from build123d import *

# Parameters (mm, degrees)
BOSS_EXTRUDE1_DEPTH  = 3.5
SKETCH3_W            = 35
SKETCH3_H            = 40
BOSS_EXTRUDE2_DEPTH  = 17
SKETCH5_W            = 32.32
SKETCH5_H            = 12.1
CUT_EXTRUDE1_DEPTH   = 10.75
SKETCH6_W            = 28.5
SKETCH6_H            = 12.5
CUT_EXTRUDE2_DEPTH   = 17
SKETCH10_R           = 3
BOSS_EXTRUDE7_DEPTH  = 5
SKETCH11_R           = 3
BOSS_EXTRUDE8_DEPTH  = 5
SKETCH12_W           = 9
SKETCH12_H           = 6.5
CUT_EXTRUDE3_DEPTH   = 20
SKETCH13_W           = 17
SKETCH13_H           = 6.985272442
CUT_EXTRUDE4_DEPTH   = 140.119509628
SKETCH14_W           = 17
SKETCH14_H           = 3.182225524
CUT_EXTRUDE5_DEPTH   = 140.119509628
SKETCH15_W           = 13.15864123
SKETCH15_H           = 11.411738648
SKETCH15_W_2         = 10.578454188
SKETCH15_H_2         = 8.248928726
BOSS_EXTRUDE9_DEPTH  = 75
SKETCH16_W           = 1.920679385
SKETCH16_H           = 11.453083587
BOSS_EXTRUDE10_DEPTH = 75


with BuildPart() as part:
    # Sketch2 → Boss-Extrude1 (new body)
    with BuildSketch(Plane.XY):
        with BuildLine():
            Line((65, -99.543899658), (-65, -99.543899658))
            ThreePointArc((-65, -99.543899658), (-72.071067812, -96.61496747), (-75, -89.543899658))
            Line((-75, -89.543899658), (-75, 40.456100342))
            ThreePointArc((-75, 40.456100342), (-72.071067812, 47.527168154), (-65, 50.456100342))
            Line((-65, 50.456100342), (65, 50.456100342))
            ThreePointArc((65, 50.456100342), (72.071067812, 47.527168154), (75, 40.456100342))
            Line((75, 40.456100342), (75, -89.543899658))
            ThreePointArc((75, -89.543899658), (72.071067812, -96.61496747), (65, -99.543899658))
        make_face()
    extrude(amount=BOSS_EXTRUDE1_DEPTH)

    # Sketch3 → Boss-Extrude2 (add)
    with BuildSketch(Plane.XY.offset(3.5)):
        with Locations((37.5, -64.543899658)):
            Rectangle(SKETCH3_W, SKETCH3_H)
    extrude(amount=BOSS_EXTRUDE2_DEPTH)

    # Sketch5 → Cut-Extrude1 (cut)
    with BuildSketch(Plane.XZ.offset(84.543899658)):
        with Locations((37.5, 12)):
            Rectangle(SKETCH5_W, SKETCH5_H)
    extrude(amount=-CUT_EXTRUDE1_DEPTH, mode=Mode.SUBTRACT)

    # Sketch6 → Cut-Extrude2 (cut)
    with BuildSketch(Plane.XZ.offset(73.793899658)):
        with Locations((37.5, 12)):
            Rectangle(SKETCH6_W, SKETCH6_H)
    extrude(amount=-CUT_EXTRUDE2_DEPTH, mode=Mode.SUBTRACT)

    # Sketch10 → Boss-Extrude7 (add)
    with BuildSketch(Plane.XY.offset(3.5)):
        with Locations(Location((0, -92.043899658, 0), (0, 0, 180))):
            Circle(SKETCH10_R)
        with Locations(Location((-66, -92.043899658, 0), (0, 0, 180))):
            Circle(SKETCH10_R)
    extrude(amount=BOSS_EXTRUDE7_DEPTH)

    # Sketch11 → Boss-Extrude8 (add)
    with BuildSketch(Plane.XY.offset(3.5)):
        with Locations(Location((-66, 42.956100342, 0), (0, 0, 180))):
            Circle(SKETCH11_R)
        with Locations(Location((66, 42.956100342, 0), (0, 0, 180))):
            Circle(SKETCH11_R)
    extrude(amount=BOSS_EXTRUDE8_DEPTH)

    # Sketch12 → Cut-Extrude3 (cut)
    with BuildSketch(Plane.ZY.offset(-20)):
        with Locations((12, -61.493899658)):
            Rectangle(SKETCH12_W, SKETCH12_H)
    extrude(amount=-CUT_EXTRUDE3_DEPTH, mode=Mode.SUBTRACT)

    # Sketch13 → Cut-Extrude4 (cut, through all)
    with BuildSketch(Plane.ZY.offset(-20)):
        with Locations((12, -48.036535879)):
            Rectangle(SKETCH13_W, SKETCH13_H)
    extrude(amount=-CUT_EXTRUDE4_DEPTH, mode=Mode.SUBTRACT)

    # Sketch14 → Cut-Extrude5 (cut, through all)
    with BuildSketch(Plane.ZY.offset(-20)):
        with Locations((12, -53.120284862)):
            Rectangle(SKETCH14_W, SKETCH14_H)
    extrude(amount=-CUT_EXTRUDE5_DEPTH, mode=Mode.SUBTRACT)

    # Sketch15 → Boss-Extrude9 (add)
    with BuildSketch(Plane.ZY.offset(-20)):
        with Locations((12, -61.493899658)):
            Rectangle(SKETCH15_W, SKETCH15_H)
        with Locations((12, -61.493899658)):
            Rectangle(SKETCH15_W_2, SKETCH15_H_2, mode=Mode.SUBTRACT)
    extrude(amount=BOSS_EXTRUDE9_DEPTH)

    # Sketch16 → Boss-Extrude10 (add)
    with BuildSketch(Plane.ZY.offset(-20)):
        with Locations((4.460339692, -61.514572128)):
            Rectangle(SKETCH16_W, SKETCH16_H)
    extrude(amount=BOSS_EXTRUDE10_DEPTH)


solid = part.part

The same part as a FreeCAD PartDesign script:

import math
import FreeCAD as App
import Part
import Sketcher

doc = App.newDocument("Part")
body = doc.addObject("PartDesign::Body", "Body")

# Sketch on XY plane
sketch1 = body.newObject("Sketcher::SketchObject", "Sketch")
sketch1.AttachmentSupport = (doc.getObject("XY_Plane"), [""])
sketch1.MapMode = "FlatFace"
sketch1.addGeometry([
    Part.LineSegment(App.Vector(-65, -100, 0), App.Vector(65, -100, 0)),  # 0
    Part.ArcOfCircle(Part.Circle(App.Vector(65, -90, 0), App.Vector(0, 0, 1), 10), math.radians(-90), math.radians(0)),  # 1
    Part.LineSegment(App.Vector(75, -90, 0), App.Vector(75, 40, 0)),  # 2
    Part.ArcOfCircle(Part.Circle(App.Vector(65, 40, 0), App.Vector(0, 0, 1), 10), math.radians(0), math.radians(90)),  # 3
    Part.LineSegment(App.Vector(65, 50, 0), App.Vector(-65, 50, 0)),  # 4
    Part.ArcOfCircle(Part.Circle(App.Vector(-65, 40, 0), App.Vector(0, 0, 1), 10), math.radians(90), math.radians(180)),  # 5
    Part.LineSegment(App.Vector(-75, 40, 0), App.Vector(-75, -90, 0)),  # 6
    Part.ArcOfCircle(Part.Circle(App.Vector(-65, -90, 0), App.Vector(0, 0, 1), 10), math.radians(180), math.radians(270)),  # 7
], False)
sketch1.addConstraint([
    Sketcher.Constraint("Tangent", 0, 2, 1, 1),
    Sketcher.Constraint("Tangent", 1, 2, 2, 1),
    Sketcher.Constraint("Tangent", 2, 2, 3, 1),
    Sketcher.Constraint("Tangent", 3, 2, 4, 1),
    Sketcher.Constraint("Tangent", 4, 2, 5, 1),
    Sketcher.Constraint("Tangent", 5, 2, 6, 1),
    Sketcher.Constraint("Tangent", 6, 2, 7, 1),
    Sketcher.Constraint("Tangent", 7, 2, 0, 1),
    Sketcher.Constraint("Horizontal", 0),
    Sketcher.Constraint("Vertical", 2),
    Sketcher.Constraint("Horizontal", 4),
    Sketcher.Constraint("Vertical", 6),
    Sketcher.Constraint("Equal", 1, 3),
    Sketcher.Constraint("Equal", 3, 5),
    Sketcher.Constraint("Equal", 5, 7),
    Sketcher.Constraint("Equal", 4, 2),
    Sketcher.Constraint("Radius", 1, 10.0),
    Sketcher.Constraint("DistanceX", 0, 1, 0, 2, 130.0),
    Sketcher.Constraint("DistanceX", -1, 1, 1, 3, 65.0),
    Sketcher.Constraint("DistanceY", 1, 3, -1, 1, 89.5439),
])
pad1 = body.newObject("PartDesign::Pad", "Pad")
pad1.Profile = sketch1
pad1.Length = 3.5

# Sketch on XY plane
sketch2 = body.newObject("Sketcher::SketchObject", "Sketch001")
sketch2.AttachmentSupport = (doc.getObject("XY_Plane"), [""])
sketch2.MapMode = "FlatFace"
sketch2.AttachmentOffset = App.Placement(App.Vector(0, 0, 3.5), App.Rotation())
sketch2.addGeometry([
    Part.LineSegment(App.Vector(20, -45, 0), App.Vector(20, -85, 0)),
    Part.LineSegment(App.Vector(20, -85, 0), App.Vector(55, -85, 0)),
    Part.LineSegment(App.Vector(55, -85, 0), App.Vector(55, -45, 0)),
    Part.LineSegment(App.Vector(55, -45, 0), App.Vector(20, -45, 0)),
], False)
sketch2.addConstraint([
    Sketcher.Constraint("Coincident", 0, 2, 1, 1),
    Sketcher.Constraint("Coincident", 1, 2, 2, 1),
    Sketcher.Constraint("Coincident", 2, 2, 3, 1),
    Sketcher.Constraint("Coincident", 3, 2, 0, 1),
    Sketcher.Constraint("Vertical", 0),
    Sketcher.Constraint("Horizontal", 1),
    Sketcher.Constraint("Vertical", 2),
    Sketcher.Constraint("Horizontal", 3),
    Sketcher.Constraint("DistanceX", 1, 1, 1, 2, 35.0),
    Sketcher.Constraint("DistanceY", 0, 2, 0, 1, 40.0),
    Sketcher.Constraint("DistanceX", -1, 1, 0, 2, 20.0),
    Sketcher.Constraint("DistanceY", 0, 2, -1, 1, 84.5439),
])
pad2 = body.newObject("PartDesign::Pad", "Pad001")
pad2.Profile = sketch2
pad2.Length = 17

# Sketch on XZ plane
sketch3 = body.newObject("Sketcher::SketchObject", "Sketch002")
sketch3.AttachmentSupport = (doc.getObject("XZ_Plane"), [""])
sketch3.MapMode = "FlatFace"
sketch3.AttachmentOffset = App.Placement(App.Vector(0, 0, 84.5439), App.Rotation())
sketch3.addGeometry([
    Part.LineSegment(App.Vector(21, 18, 0), App.Vector(21, 6, 0)),
    Part.LineSegment(App.Vector(21, 6, 0), App.Vector(54, 6, 0)),
    Part.LineSegment(App.Vector(54, 6, 0), App.Vector(54, 18, 0)),
    Part.LineSegment(App.Vector(54, 18, 0), App.Vector(21, 18, 0)),
], False)
sketch3.addConstraint([
    Sketcher.Constraint("Coincident", 0, 2, 1, 1),
    Sketcher.Constraint("Coincident", 1, 2, 2, 1),
    Sketcher.Constraint("Coincident", 2, 2, 3, 1),
    Sketcher.Constraint("Coincident", 3, 2, 0, 1),
    Sketcher.Constraint("Vertical", 0),
    Sketcher.Constraint("Horizontal", 1),
    Sketcher.Constraint("Vertical", 2),
    Sketcher.Constraint("Horizontal", 3),
    Sketcher.Constraint("DistanceY", 0, 2, 0, 1, 12.1),
    Sketcher.Constraint("DistanceX", 1, 1, 1, 2, 32.32),
    Sketcher.Constraint("DistanceX", -1, 1, 0, 2, 21.34),
    Sketcher.Constraint("DistanceY", -1, 1, 0, 2, 5.95),
])
pocket1 = body.newObject("PartDesign::Pocket", "Pocket")
pocket1.Profile = sketch3
pocket1.Length = 10.75

# Sketch on XZ plane
sketch4 = body.newObject("Sketcher::SketchObject", "Sketch003")
sketch4.AttachmentSupport = (doc.getObject("XZ_Plane"), [""])
sketch4.MapMode = "FlatFace"
sketch4.AttachmentOffset = App.Placement(App.Vector(0, 0, 73.7939), App.Rotation())
sketch4.addGeometry([
    Part.LineSegment(App.Vector(23, 18, 0), App.Vector(23, 6, 0)),
    Part.LineSegment(App.Vector(23, 6, 0), App.Vector(52, 6, 0)),
    Part.LineSegment(App.Vector(52, 6, 0), App.Vector(52, 18, 0)),
    Part.LineSegment(App.Vector(52, 18, 0), App.Vector(23, 18, 0)),
], False)
sketch4.addConstraint([
    Sketcher.Constraint("Coincident", 0, 2, 1, 1),
    Sketcher.Constraint("Coincident", 1, 2, 2, 1),
    Sketcher.Constraint("Coincident", 2, 2, 3, 1),
    Sketcher.Constraint("Coincident", 3, 2, 0, 1),
    Sketcher.Constraint("Vertical", 0),
    Sketcher.Constraint("Horizontal", 1),
    Sketcher.Constraint("Vertical", 2),
    Sketcher.Constraint("Horizontal", 3),
    Sketcher.Constraint("DistanceX", 1, 1, 1, 2, 28.5),
    Sketcher.Constraint("DistanceY", 0, 2, 0, 1, 12.5),
    Sketcher.Constraint("DistanceX", -1, 1, 0, 2, 23.25),
    Sketcher.Constraint("DistanceY", -1, 1, 0, 2, 5.75),
])
pocket2 = body.newObject("PartDesign::Pocket", "Pocket001")
pocket2.Profile = sketch4
pocket2.Length = 17

# Sketch on XY plane
sketch5 = body.newObject("Sketcher::SketchObject", "Sketch004")
sketch5.AttachmentSupport = (doc.getObject("XY_Plane"), [""])
sketch5.MapMode = "FlatFace"
sketch5.AttachmentOffset = App.Placement(App.Vector(0, 0, 3.5), App.Rotation())
sketch5.addGeometry([
    Part.Circle(App.Vector(0, -92, 0), App.Vector(0, 0, 1), 3),
    Part.Circle(App.Vector(-66, -92, 0), App.Vector(0, 0, 1), 3),
], False)
sketch5.addConstraint([
    Sketcher.Constraint("Equal", 0, 1),
    Sketcher.Constraint("PointOnObject", 0, 3, -2),
    Sketcher.Constraint("Horizontal", 0, 3, 1, 3),
    Sketcher.Constraint("Diameter", 0, 6.0),
    Sketcher.Constraint("DistanceX", 1, 3, -1, 1, 66.0),
    Sketcher.Constraint("DistanceY", 0, 3, -1, 1, 92.0439),
])
pad3 = body.newObject("PartDesign::Pad", "Pad002")
pad3.Profile = sketch5
pad3.Length = 5

# Sketch on XY plane
sketch6 = body.newObject("Sketcher::SketchObject", "Sketch005")
sketch6.AttachmentSupport = (doc.getObject("XY_Plane"), [""])
sketch6.MapMode = "FlatFace"
sketch6.AttachmentOffset = App.Placement(App.Vector(0, 0, 3.5), App.Rotation())
sketch6.addGeometry([
    Part.Circle(App.Vector(-66, 43, 0), App.Vector(0, 0, 1), 3),
    Part.Circle(App.Vector(66, 43, 0), App.Vector(0, 0, 1), 3),
], False)
sketch6.addConstraint([
    Sketcher.Constraint("Equal", 0, 1),
    Sketcher.Constraint("Symmetric", 0, 3, 1, 3, -2),
    Sketcher.Constraint("Diameter", 0, 6.0),
    Sketcher.Constraint("DistanceX", 0, 3, -1, 1, 66.0),
    Sketcher.Constraint("DistanceY", -1, 1, 0, 3, 42.9561),
])
pad4 = body.newObject("PartDesign::Pad", "Pad003")
pad4.Profile = sketch6
pad4.Length = 5

# Sketch on YZ plane
sketch7 = body.newObject("Sketcher::SketchObject", "Sketch006")
sketch7.AttachmentSupport = (doc.getObject("YZ_Plane"), [""])
sketch7.MapMode = "FlatFace"
sketch7.AttachmentOffset = App.Placement(App.Vector(0, 0, 20), App.Rotation())
sketch7.addGeometry([
    Part.LineSegment(App.Vector(-58, 8, 0), App.Vector(-65, 8, 0)),
    Part.LineSegment(App.Vector(-65, 8, 0), App.Vector(-65, 16, 0)),
    Part.LineSegment(App.Vector(-65, 16, 0), App.Vector(-58, 16, 0)),
    Part.LineSegment(App.Vector(-58, 16, 0), App.Vector(-58, 8, 0)),
], False)
sketch7.addConstraint([
    Sketcher.Constraint("Coincident", 0, 2, 1, 1),
    Sketcher.Constraint("Coincident", 1, 2, 2, 1),
    Sketcher.Constraint("Coincident", 2, 2, 3, 1),
    Sketcher.Constraint("Coincident", 3, 2, 0, 1),
    Sketcher.Constraint("Horizontal", 0),
    Sketcher.Constraint("Vertical", 1),
    Sketcher.Constraint("Horizontal", 2),
    Sketcher.Constraint("Vertical", 3),
    Sketcher.Constraint("DistanceY", 1, 1, 1, 2, 9.0),
    Sketcher.Constraint("DistanceX", 0, 2, 0, 1, 6.5),
    Sketcher.Constraint("DistanceY", -1, 1, 0, 2, 7.5),
    Sketcher.Constraint("DistanceX", 0, 2, -1, 1, 64.7439),
])
pocket3 = body.newObject("PartDesign::Pocket", "Pocket002")
pocket3.Profile = sketch7
pocket3.Length = 20
pocket3.Reversed = True

# Sketch on YZ plane
sketch8 = body.newObject("Sketcher::SketchObject", "Sketch007")
sketch8.AttachmentSupport = (doc.getObject("YZ_Plane"), [""])
sketch8.MapMode = "FlatFace"
sketch8.AttachmentOffset = App.Placement(App.Vector(0, 0, 20), App.Rotation())
sketch8.addGeometry([
    Part.LineSegment(App.Vector(-45, 4, 0), App.Vector(-52, 4, 0)),
    Part.LineSegment(App.Vector(-52, 4, 0), App.Vector(-52, 20, 0)),
    Part.LineSegment(App.Vector(-52, 20, 0), App.Vector(-45, 20, 0)),
    Part.LineSegment(App.Vector(-45, 20, 0), App.Vector(-45, 4, 0)),
], False)
sketch8.addConstraint([
    Sketcher.Constraint("Coincident", 0, 2, 1, 1),
    Sketcher.Constraint("Coincident", 1, 2, 2, 1),
    Sketcher.Constraint("Coincident", 2, 2, 3, 1),
    Sketcher.Constraint("Coincident", 3, 2, 0, 1),
    Sketcher.Constraint("Horizontal", 0),
    Sketcher.Constraint("Vertical", 1),
    Sketcher.Constraint("Horizontal", 2),
    Sketcher.Constraint("Vertical", 3),
    Sketcher.Constraint("DistanceY", 1, 1, 1, 2, 17.0),
    Sketcher.Constraint("DistanceY", -1, 1, 0, 2, 3.5),
    Sketcher.Constraint("DistanceX", 2, 2, -1, 1, 44.5439),
    Sketcher.Constraint("DistanceX", 0, 2, 0, 1, 6.985272),
])
pocket4 = body.newObject("PartDesign::Pocket", "Pocket003")
pocket4.Profile = sketch8
pocket4.Type = "ThroughAll"
pocket4.Reversed = True

# Sketch on YZ plane
sketch9 = body.newObject("Sketcher::SketchObject", "Sketch008")
sketch9.AttachmentSupport = (doc.getObject("YZ_Plane"), [""])
sketch9.MapMode = "FlatFace"
sketch9.AttachmentOffset = App.Placement(App.Vector(0, 0, 20), App.Rotation())
sketch9.addGeometry([
    Part.LineSegment(App.Vector(-51.5, 3.5, 0), App.Vector(-54.7, 3.5, 0)),
    Part.LineSegment(App.Vector(-54.7, 3.5, 0), App.Vector(-54.7, 20.5, 0)),
    Part.LineSegment(App.Vector(-54.7, 20.5, 0), App.Vector(-51.5, 20.5, 0)),
    Part.LineSegment(App.Vector(-51.5, 20.5, 0), App.Vector(-51.5, 3.5, 0)),
], False)
sketch9.addConstraint([
    Sketcher.Constraint("Coincident", 0, 2, 1, 1),
    Sketcher.Constraint("Coincident", 1, 2, 2, 1),
    Sketcher.Constraint("Coincident", 2, 2, 3, 1),
    Sketcher.Constraint("Coincident", 3, 2, 0, 1),
    Sketcher.Constraint("Horizontal", 0),
    Sketcher.Constraint("Vertical", 1),
    Sketcher.Constraint("Horizontal", 2),
    Sketcher.Constraint("Vertical", 3),
    Sketcher.Constraint("DistanceY", 1, 1, 1, 2, 17.0),
    Sketcher.Constraint("DistanceY", -1, 1, 0, 2, 3.5),
    Sketcher.Constraint("DistanceX", 0, 2, 0, 1, 3.182226),
    Sketcher.Constraint("DistanceX", 0, 2, -1, 1, 54.711398),
])
pocket5 = body.newObject("PartDesign::Pocket", "Pocket004")
pocket5.Profile = sketch9
pocket5.Type = "ThroughAll"
pocket5.Reversed = True

# Sketch on YZ plane
sketch10 = body.newObject("Sketcher::SketchObject", "Sketch009")
sketch10.AttachmentSupport = (doc.getObject("YZ_Plane"), [""])
sketch10.MapMode = "FlatFace"
sketch10.AttachmentOffset = App.Placement(App.Vector(0, 0, 20), App.Rotation())
sketch10.addGeometry([
    Part.LineSegment(App.Vector(-56, 5, 0), App.Vector(-67, 5, 0)),  # 0
    Part.LineSegment(App.Vector(-67, 5, 0), App.Vector(-67, 19, 0)),  # 1
    Part.LineSegment(App.Vector(-67, 19, 0), App.Vector(-56, 19, 0)),  # 2
    Part.LineSegment(App.Vector(-56, 19, 0), App.Vector(-56, 5, 0)),  # 3
    Part.LineSegment(App.Vector(-66, 17, 0), App.Vector(-66, 7, 0)),  # 4
    Part.LineSegment(App.Vector(-66, 7, 0), App.Vector(-57, 7, 0)),  # 5
    Part.LineSegment(App.Vector(-57, 7, 0), App.Vector(-57, 17, 0)),  # 6
    Part.LineSegment(App.Vector(-57, 17, 0), App.Vector(-66, 17, 0)),  # 7
], False)
sketch10.addConstraint([
    Sketcher.Constraint("Coincident", 0, 2, 1, 1),
    Sketcher.Constraint("Coincident", 1, 2, 2, 1),
    Sketcher.Constraint("Coincident", 2, 2, 3, 1),
    Sketcher.Constraint("Coincident", 3, 2, 0, 1),
    Sketcher.Constraint("Coincident", 4, 2, 5, 1),
    Sketcher.Constraint("Coincident", 5, 2, 6, 1),
    Sketcher.Constraint("Coincident", 6, 2, 7, 1),
    Sketcher.Constraint("Coincident", 7, 2, 4, 1),
    Sketcher.Constraint("Horizontal", 0),
    Sketcher.Constraint("Vertical", 1),
    Sketcher.Constraint("Horizontal", 2),
    Sketcher.Constraint("Vertical", 3),
    Sketcher.Constraint("Vertical", 4),
    Sketcher.Constraint("Horizontal", 5),
    Sketcher.Constraint("Vertical", 6),
    Sketcher.Constraint("Horizontal", 7),
    Sketcher.Constraint("DistanceX", 0, 2, 0, 1, 11.411739),
    Sketcher.Constraint("DistanceX", 5, 1, 5, 2, 8.248929),
    Sketcher.Constraint("DistanceY", 1, 1, 1, 2, 13.158641),
    Sketcher.Constraint("DistanceY", 4, 2, 4, 1, 10.578454),
    Sketcher.Constraint("DistanceX", 0, 2, -1, 1, 67.199769),
    Sketcher.Constraint("DistanceY", -1, 1, 0, 2, 5.420679),
    Sketcher.Constraint("DistanceX", 4, 2, -1, 1, 65.618364),
    Sketcher.Constraint("DistanceY", -1, 1, 4, 2, 6.710773),
])
pad5 = body.newObject("PartDesign::Pad", "Pad004")
pad5.Profile = sketch10
pad5.Length = 75
pad5.Reversed = True

# Sketch on YZ plane
sketch11 = body.newObject("Sketcher::SketchObject", "Sketch010")
sketch11.AttachmentSupport = (doc.getObject("YZ_Plane"), [""])
sketch11.MapMode = "FlatFace"
sketch11.AttachmentOffset = App.Placement(App.Vector(0, 0, 20), App.Rotation())
sketch11.addGeometry([
    Part.LineSegment(App.Vector(-55.8, 3.5, 0), App.Vector(-67.2, 3.5, 0)),
    Part.LineSegment(App.Vector(-67.2, 3.5, 0), App.Vector(-67.2, 5.4, 0)),
    Part.LineSegment(App.Vector(-67.2, 5.4, 0), App.Vector(-55.8, 5.4, 0)),
    Part.LineSegment(App.Vector(-55.8, 5.4, 0), App.Vector(-55.8, 3.5, 0)),
], False)
sketch11.addConstraint([
    Sketcher.Constraint("Coincident", 0, 2, 1, 1),
    Sketcher.Constraint("Coincident", 1, 2, 2, 1),
    Sketcher.Constraint("Coincident", 2, 2, 3, 1),
    Sketcher.Constraint("Coincident", 3, 2, 0, 1),
    Sketcher.Constraint("Horizontal", 0),
    Sketcher.Constraint("Vertical", 1),
    Sketcher.Constraint("Horizontal", 2),
    Sketcher.Constraint("Vertical", 3),
    Sketcher.Constraint("DistanceY", -1, 1, 0, 2, 3.5),
    Sketcher.Constraint("DistanceY", 1, 1, 1, 2, 1.920679),
    Sketcher.Constraint("DistanceX", 0, 2, 0, 1, 11.453084),
    Sketcher.Constraint("DistanceX", 2, 2, -1, 1, 55.78803),
])
pad6 = body.newObject("PartDesign::Pad", "Pad005")
pad6.Profile = sketch11
pad6.Length = 75
pad6.Reversed = True

doc.recompute()
